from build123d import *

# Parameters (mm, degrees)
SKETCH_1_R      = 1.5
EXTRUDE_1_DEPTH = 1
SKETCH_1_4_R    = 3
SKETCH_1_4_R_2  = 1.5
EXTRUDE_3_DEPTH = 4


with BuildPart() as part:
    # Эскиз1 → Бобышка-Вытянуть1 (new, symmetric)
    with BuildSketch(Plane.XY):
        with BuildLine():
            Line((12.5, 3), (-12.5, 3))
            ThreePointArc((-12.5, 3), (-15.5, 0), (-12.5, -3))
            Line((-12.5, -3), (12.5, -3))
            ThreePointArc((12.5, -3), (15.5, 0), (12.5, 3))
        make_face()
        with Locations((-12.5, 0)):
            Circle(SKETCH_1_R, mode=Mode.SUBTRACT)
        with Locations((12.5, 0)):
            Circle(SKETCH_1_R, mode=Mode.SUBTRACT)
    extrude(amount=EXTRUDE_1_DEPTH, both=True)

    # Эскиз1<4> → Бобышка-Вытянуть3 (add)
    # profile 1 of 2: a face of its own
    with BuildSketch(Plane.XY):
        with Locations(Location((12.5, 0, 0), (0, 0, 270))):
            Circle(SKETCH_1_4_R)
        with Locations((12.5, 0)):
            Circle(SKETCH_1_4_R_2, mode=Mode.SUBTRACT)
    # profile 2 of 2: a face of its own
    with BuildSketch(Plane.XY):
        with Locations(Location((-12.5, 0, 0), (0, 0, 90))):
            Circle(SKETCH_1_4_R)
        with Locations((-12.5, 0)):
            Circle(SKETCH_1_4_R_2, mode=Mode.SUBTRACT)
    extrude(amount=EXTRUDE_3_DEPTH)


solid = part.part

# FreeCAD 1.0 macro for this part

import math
import FreeCAD as App
import Part
import Sketcher

V = App.Vector
Q = App.Units.Quantity

doc = App.newDocument("Part")
body = doc.addObject("PartDesign::Body", "Body")

# Sketch on XY plane
sketch1 = body.newObject("Sketcher::SketchObject", "Sketch")
sketch1.AttachmentSupport = (doc.getObject("XY_Plane"), [""])
sketch1.MapMode = "FlatFace"
sketch1.addGeometry(Part.LineSegment(V(12.5, 3, 0), V(-12.5, 3, 0)), False)
sketch1.addGeometry(Part.ArcOfCircle(Part.Circle(V(-12.5, 0, 0), V(0, 0, 1), 3), math.radians(90), math.radians(270)), False)
sketch1.addGeometry(Part.LineSegment(V(-12.5, -3, 0), V(12.5, -3, 0)), False)
sketch1.addGeometry(Part.ArcOfCircle(Part.Circle(V(12.5, 0, 0), V(0, 0, 1), 3), math.radians(-90), math.radians(90)), False)
sketch1.addGeometry(Part.Circle(V(-12.5, 0, 0), V(0, 0, 1), 1.5), False)
sketch1.addGeometry(Part.Circle(V(12.5, 0, 0), V(0, 0, 1), 1.5), False)
sketch1.addConstraint(Sketcher.Constraint("Tangent", 0, 2, 1, 1))
sketch1.addConstraint(Sketcher.Constraint("Tangent", 1, 2, 2, 1))
sketch1.addConstraint(Sketcher.Constraint("Tangent", 2, 2, 3, 1))
sketch1.addConstraint(Sketcher.Constraint("Tangent", 3, 2, 0, 1))
sketch1.addConstraint(Sketcher.Constraint("Horizontal", 0))
sketch1.addConstraint(Sketcher.Constraint("Horizontal", 2))
sketch1.addConstraint(Sketcher.Constraint("Coincident", 4, 3, 1, 3))
sketch1.addConstraint(Sketcher.Constraint("Coincident", 5, 3, 3, 3))
sketch1.addConstraint(Sketcher.Constraint("Equal", 4, 5))
sketch1.addConstraint(Sketcher.Constraint("Symmetric", 1, 3, 3, 3, -1, 1))
sketch1.addConstraint(Sketcher.Constraint("Diameter", 4, Q("3 mm")))
sketch1.addConstraint(Sketcher.Constraint("Radius", 1, Q("3 mm")))
sketch1.addConstraint(Sketcher.Constraint("DistanceX", 0, 2, 0, 1, Q("25 mm")))
pad1 = body.newObject("PartDesign::Pad", "Pad")
pad1.Profile = sketch1
pad1.Length = 2
pad1.Midplane = True

# Sketch on XY plane
sketch2 = body.newObject("Sketcher::SketchObject", "Sketch001")
sketch2.AttachmentSupport = (doc.getObject("XY_Plane"), [""])
sketch2.MapMode = "FlatFace"
sketch2.addGeometry(Part.Circle(V(12.5, 0, 0), V(0, 0, 1), 3), False)
sketch2.addGeometry(Part.Circle(V(12.5, 0, 0), V(0, 0, 1), 1.5), False)
sketch2.addGeometry(Part.Circle(V(-12.5, 0, 0), V(0, 0, 1), 3), False)
sketch2.addGeometry(Part.Circle(V(-12.5, 0, 0), V(0, 0, 1), 1.5), False)
sketch2.addConstraint(Sketcher.Constraint("Coincident", 1, 3, 0, 3))
sketch2.addConstraint(Sketcher.Constraint("Coincident", 3, 3, 2, 3))
sketch2.addConstraint(Sketcher.Constraint("Equal", 0, 2))
sketch2.addConstraint(Sketcher.Constraint("Equal", 1, 3))
sketch2.addConstraint(Sketcher.Constraint("Symmetric", 0, 3, 2, 3, -1, 1))
sketch2.addConstraint(Sketcher.Constraint("PointOnObject", 0, 3, -1))
sketch2.addConstraint(Sketcher.Constraint("Diameter", 0, Q("6 mm")))
sketch2.addConstraint(Sketcher.Constraint("Diameter", 1, Q("3 mm")))
sketch2.addConstraint(Sketcher.Constraint("DistanceX", 2, 3, 0, 3, Q("25 mm")))
pad2 = body.newObject("PartDesign::Pad", "Pad001")
pad2.Profile = sketch2
pad2.Length = 4

doc.recompute()
